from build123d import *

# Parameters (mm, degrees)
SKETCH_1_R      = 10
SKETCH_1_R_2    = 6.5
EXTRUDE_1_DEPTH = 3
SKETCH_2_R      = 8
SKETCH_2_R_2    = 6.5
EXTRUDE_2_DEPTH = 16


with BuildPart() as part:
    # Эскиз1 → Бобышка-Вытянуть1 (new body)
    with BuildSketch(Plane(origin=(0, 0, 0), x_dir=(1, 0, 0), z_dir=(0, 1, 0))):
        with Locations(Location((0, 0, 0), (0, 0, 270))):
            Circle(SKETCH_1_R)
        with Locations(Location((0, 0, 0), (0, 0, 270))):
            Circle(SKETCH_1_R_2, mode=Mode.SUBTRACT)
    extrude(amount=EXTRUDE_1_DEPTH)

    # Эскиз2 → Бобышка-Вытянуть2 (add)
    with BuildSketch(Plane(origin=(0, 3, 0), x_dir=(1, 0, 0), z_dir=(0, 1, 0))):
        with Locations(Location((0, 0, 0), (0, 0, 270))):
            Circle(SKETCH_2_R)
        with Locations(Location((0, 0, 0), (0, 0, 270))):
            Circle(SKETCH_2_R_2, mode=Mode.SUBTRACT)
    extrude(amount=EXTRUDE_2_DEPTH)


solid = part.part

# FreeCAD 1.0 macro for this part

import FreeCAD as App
import Part
import Sketcher

V = App.Vector
Q = App.Units.Quantity

doc = App.newDocument("Part")
params = doc.addObject("Spreadsheet::Sheet", "Params")
for row, (alias, value) in enumerate([
    ("sketch1_diameter", "20 mm"),
    ("sketch1_diameter2", "13 mm"),
    ("pad1_length", "3 mm"),
    ("sketch2_diameter", "16 mm"),
    ("sketch2_diameter2", "13 mm"),
    ("pad2_length", "16 mm"),
], start=1):
    params.set(f"A{row}", alias)
    params.set(f"B{row}", "=" + value)
    params.setAlias(f"B{row}", alias)

body = doc.addObject("PartDesign::Body", "Body")

# Sketch on XZ plane
sketch1 = doc.addObject("Sketcher::SketchObject", "Sketch")
body.addObject(sketch1)
sketch1.AttachmentSupport = (doc.XZ_Plane, [""])
sketch1.MapMode = "FlatFace"
sketch1.addGeometry(Part.Circle(V(0, 0, 0), V(0, 0, 1), 10), False)
sketch1.addGeometry(Part.Circle(V(0, 0, 0), V(0, 0, 1), 6.5), False)
sketch1.addConstraint(Sketcher.Constraint("Coincident", 0, 3, -1, 1))
sketch1.addConstraint(Sketcher.Constraint("Coincident", 1, 3, -1, 1))
sketch1.addConstraint(Sketcher.Constraint("Diameter", 0, Q("20 mm")))
sketch1.addConstraint(Sketcher.Constraint("Diameter", 1, Q("13 mm")))
sketch1.setExpression("Constraints[2]", "Params.sketch1_diameter")
sketch1.setExpression("Constraints[3]", "Params.sketch1_diameter2")
pad1 = doc.addObject("PartDesign::Pad", "Pad")
body.addObject(pad1)
pad1.Profile = sketch1
pad1.setExpression("Length", "Params.pad1_length")
pad1.Reversed = True

# Sketch on XZ plane
sketch2 = doc.addObject("Sketcher::SketchObject", "Sketch001")
body.addObject(sketch2)
sketch2.AttachmentSupport = (doc.XZ_Plane, [""])
sketch2.MapMode = "FlatFace"
sketch2.AttachmentOffset = App.Placement(V(0, 0, -3), App.Rotation())
sketch2.addGeometry(Part.Circle(V(0, 0, 0), V(0, 0, 1), 8), False)
sketch2.addGeometry(Part.Circle(V(0, 0, 0), V(0, 0, 1), 6.5), False)
sketch2.addConstraint(Sketcher.Constraint("Coincident", 0, 3, -1, 1))
sketch2.addConstraint(Sketcher.Constraint("Coincident", 1, 3, -1, 1))
sketch2.addConstraint(Sketcher.Constraint("Diameter", 0, Q("16 mm")))
sketch2.addConstraint(Sketcher.Constraint("Diameter", 1, Q("13 mm")))
sketch2.setExpression("Constraints[2]", "Params.sketch2_diameter")
sketch2.setExpression("Constraints[3]", "Params.sketch2_diameter2")
pad2 = doc.addObject("PartDesign::Pad", "Pad001")
body.addObject(pad2)
pad2.Profile = sketch2
pad2.setExpression("Length", "Params.pad2_length")
pad2.Reversed = True

doc.recompute()
